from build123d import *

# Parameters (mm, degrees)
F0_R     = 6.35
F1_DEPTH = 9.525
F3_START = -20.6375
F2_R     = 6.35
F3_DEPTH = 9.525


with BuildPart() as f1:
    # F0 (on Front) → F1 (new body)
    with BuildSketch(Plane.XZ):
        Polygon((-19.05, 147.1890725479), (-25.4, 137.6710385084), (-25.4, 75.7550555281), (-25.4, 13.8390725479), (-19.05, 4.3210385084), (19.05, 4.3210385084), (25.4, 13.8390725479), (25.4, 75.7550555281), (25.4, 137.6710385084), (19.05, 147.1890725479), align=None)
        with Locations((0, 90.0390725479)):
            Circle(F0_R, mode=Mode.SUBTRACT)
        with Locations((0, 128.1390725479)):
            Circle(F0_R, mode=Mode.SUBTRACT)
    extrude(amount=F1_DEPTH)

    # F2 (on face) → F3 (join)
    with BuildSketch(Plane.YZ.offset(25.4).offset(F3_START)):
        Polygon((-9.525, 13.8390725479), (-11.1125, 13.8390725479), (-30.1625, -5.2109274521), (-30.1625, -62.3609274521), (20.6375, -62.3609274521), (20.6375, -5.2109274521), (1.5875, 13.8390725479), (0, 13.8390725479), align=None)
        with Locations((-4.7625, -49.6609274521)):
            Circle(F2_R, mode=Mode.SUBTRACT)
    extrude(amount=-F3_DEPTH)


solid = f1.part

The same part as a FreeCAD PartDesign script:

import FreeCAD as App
import Part
import Sketcher
Q = App.Units.Quantity

doc = App.newDocument("Part")
body = doc.addObject("PartDesign::Body", "Body")

sketch1 = doc.addObject("Sketcher::SketchObject", "Sketch")
body.addObject(sketch1)
sketch1.AttachmentSupport = (doc.XZ_Plane, [""])
sketch1.MapMode = "FlatFace"
sketch1.addGeometry(Part.LineSegment(App.Vector(-19.05, 147.189073, 0), App.Vector(-25.4, 137.671039, 0)), False)
sketch1.addGeometry(Part.LineSegment(App.Vector(-25.4, 137.671039, 0), App.Vector(-25.4, 13.839073, 0)), False)
sketch1.addGeometry(Part.LineSegment(App.Vector(-25.4, 13.839073, 0), App.Vector(-19.05, 4.321039, 0)), False)
sketch1.addGeometry(Part.LineSegment(App.Vector(-19.05, 4.321039, 0), App.Vector(19.05, 4.321039, 0)), False)
sketch1.addGeometry(Part.LineSegment(App.Vector(19.05, 4.321039, 0), App.Vector(25.4, 13.839073, 0)), False)
sketch1.addGeometry(Part.LineSegment(App.Vector(25.4, 13.839073, 0), App.Vector(25.4, 137.671039, 0)), False)
sketch1.addGeometry(Part.LineSegment(App.Vector(25.4, 137.671039, 0), App.Vector(19.05, 147.189073, 0)), False)
sketch1.addGeometry(Part.LineSegment(App.Vector(19.05, 147.189073, 0), App.Vector(-19.05, 147.189073, 0)), False)
sketch1.addGeometry(Part.Circle(App.Vector(0, 90.039073, 0), App.Vector(0, 0, 1), 6.35), False)
sketch1.addGeometry(Part.Circle(App.Vector(0, 128.139073, 0), App.Vector(0, 0, 1), 6.35), False)
sketch1.addConstraint(Sketcher.Constraint("Coincident", 0, 2, 1, 1))
sketch1.addConstraint(Sketcher.Constraint("Coincident", 1, 2, 2, 1))
sketch1.addConstraint(Sketcher.Constraint("Coincident", 2, 2, 3, 1))
sketch1.addConstraint(Sketcher.Constraint("Coincident", 3, 2, 4, 1))
sketch1.addConstraint(Sketcher.Constraint("Coincident", 4, 2, 5, 1))
sketch1.addConstraint(Sketcher.Constraint("Coincident", 5, 2, 6, 1))
sketch1.addConstraint(Sketcher.Constraint("Coincident", 6, 2, 7, 1))
sketch1.addConstraint(Sketcher.Constraint("Coincident", 7, 2, 0, 1))
sketch1.addConstraint(Sketcher.Constraint("Vertical", 1))
sketch1.addConstraint(Sketcher.Constraint("Horizontal", 3))
sketch1.addConstraint(Sketcher.Constraint("Vertical", 5))
sketch1.addConstraint(Sketcher.Constraint("Horizontal", 7))
sketch1.addConstraint(Sketcher.Constraint("Equal", 8, 9))
sketch1.addConstraint(Sketcher.Constraint("Symmetric", 1, 2, 4, 2, -2))
sketch1.addConstraint(Sketcher.Constraint("PointOnObject", 8, 3, -2))
sketch1.addConstraint(Sketcher.Constraint("PointOnObject", 9, 3, -2))
sketch1.addConstraint(Sketcher.Constraint("Parallel", 0, 4))
sketch1.addConstraint(Sketcher.Constraint("Parallel", 2, 6))
sketch1.addConstraint(Sketcher.Constraint("Horizontal", 0, 2, 5, 2))
sketch1.addConstraint(Sketcher.Constraint("Vertical", 3, 2, 6, 2))
sketch1.addConstraint(Sketcher.Constraint("Vertical", 2, 2, 7, 2))
sketch1.addConstraint(Sketcher.Constraint("Diameter", 8, Q("0.5 in")))
sketch1.addConstraint(Sketcher.Constraint("DistanceX", 3, 1, 3, 2, Q("1.5 in")))
sketch1.addConstraint(Sketcher.Constraint("DistanceX", 0, 2, -1, 1, Q("1 in")))
sketch1.addConstraint(Sketcher.Constraint("DistanceY", 1, 2, 8, 3, Q("3 in")))
sketch1.addConstraint(Sketcher.Constraint("DistanceY", 8, 3, 9, 3, Q("1.5 in")))
sketch1.addConstraint(Sketcher.Constraint("DistanceY", 2, 2, 0, 2, Q("5.25 in")))
sketch1.addConstraint(Sketcher.Constraint("Distance", 0, Q("11.44183 mm")))
sketch1.addConstraint(Sketcher.Constraint("DistanceY", -1, 1, 0, 2, Q("137.671039 mm")))
pad1 = doc.addObject("PartDesign::Pad", "Pad")
body.addObject(pad1)
pad1.Profile = sketch1
pad1.Length = Q("0.375 in")

sketch2 = doc.addObject("Sketcher::SketchObject", "Sketch001")
body.addObject(sketch2)
sketch2.AttachmentSupport = (doc.YZ_Plane, [""])
sketch2.MapMode = "FlatFace"
sketch2.AttachmentOffset = App.Placement(App.Vector(0, 0, 0.1875 * 25.4), App.Rotation())
sketch2.addGeometry(Part.LineSegment(App.Vector(-11.1125, 13.839073, 0), App.Vector(-30.1625, -5.210927, 0)), False)
sketch2.addGeometry(Part.LineSegment(App.Vector(-30.1625, -5.210927, 0), App.Vector(-30.1625, -62.360927, 0)), False)
sketch2.addGeometry(Part.LineSegment(App.Vector(-30.1625, -62.360927, 0), App.Vector(20.6375, -62.360927, 0)), False)
sketch2.addGeometry(Part.LineSegment(App.Vector(20.6375, -62.360927, 0), App.Vector(20.6375, -5.210927, 0)), False)
sketch2.addGeometry(Part.LineSegment(App.Vector(20.6375, -5.210927, 0), App.Vector(1.5875, 13.839073, 0)), False)
sketch2.addGeometry(Part.LineSegment(App.Vector(1.5875, 13.839073, 0), App.Vector(-11.1125, 13.839073, 0)), False)
sketch2.addGeometry(Part.Circle(App.Vector(-4.7625, -49.660927, 0), App.Vector(0, 0, 1), 6.35), False)
sketch2.addConstraint(Sketcher.Constraint("Coincident", 0, 2, 1, 1))
sketch2.addConstraint(Sketcher.Constraint("Coincident", 1, 2, 2, 1))
sketch2.addConstraint(Sketcher.Constraint("Coincident", 2, 2, 3, 1))
sketch2.addConstraint(Sketcher.Constraint("Coincident", 3, 2, 4, 1))
sketch2.addConstraint(Sketcher.Constraint("Coincident", 4, 2, 5, 1))
sketch2.addConstraint(Sketcher.Constraint("Coincident", 5, 2, 0, 1))
sketch2.addConstraint(Sketcher.Constraint("Vertical", 1))
sketch2.addConstraint(Sketcher.Constraint("Horizontal", 2))
sketch2.addConstraint(Sketcher.Constraint("Vertical", 3))
sketch2.addConstraint(Sketcher.Constraint("Horizontal", 5))
sketch2.addConstraint(Sketcher.Constraint("Perpendicular", 0, 4))
sketch2.addConstraint(Sketcher.Constraint("Horizontal", 0, 2, 3, 2))
sketch2.addConstraint(Sketcher.Constraint("Equal", 0, 4))
sketch2.addConstraint(Sketcher.Constraint("Diameter", 6, Q("0.5 in")))
sketch2.addConstraint(Sketcher.Constraint("DistanceX", 2, 1, 2, 2, Q("2 in")))
sketch2.addConstraint(Sketcher.Constraint("DistanceX", 5, 2, 5, 1, Q("0.5 in")))
sketch2.addConstraint(Sketcher.Constraint("DistanceX", 0, 2, 6, 3, Q("1 in")))
sketch2.addConstraint(Sketcher.Constraint("DistanceY", 2, 2, 4, 2, Q("3 in")))
sketch2.addConstraint(Sketcher.Constraint("DistanceY", 1, 2, 6, 3, Q("0.5 in")))
sketch2.addConstraint(Sketcher.Constraint("DistanceX", 6, 3, -1, 1, Q("0.1875 in")))
sketch2.addConstraint(Sketcher.Constraint("DistanceY", 6, 3, -1, 1, Q("49.660927 mm")))
pad2 = doc.addObject("PartDesign::Pad", "Pad001")
body.addObject(pad2)
pad2.Profile = sketch2
pad2.Length = Q("0.375 in")
pad2.Reversed = True

doc.recompute()
